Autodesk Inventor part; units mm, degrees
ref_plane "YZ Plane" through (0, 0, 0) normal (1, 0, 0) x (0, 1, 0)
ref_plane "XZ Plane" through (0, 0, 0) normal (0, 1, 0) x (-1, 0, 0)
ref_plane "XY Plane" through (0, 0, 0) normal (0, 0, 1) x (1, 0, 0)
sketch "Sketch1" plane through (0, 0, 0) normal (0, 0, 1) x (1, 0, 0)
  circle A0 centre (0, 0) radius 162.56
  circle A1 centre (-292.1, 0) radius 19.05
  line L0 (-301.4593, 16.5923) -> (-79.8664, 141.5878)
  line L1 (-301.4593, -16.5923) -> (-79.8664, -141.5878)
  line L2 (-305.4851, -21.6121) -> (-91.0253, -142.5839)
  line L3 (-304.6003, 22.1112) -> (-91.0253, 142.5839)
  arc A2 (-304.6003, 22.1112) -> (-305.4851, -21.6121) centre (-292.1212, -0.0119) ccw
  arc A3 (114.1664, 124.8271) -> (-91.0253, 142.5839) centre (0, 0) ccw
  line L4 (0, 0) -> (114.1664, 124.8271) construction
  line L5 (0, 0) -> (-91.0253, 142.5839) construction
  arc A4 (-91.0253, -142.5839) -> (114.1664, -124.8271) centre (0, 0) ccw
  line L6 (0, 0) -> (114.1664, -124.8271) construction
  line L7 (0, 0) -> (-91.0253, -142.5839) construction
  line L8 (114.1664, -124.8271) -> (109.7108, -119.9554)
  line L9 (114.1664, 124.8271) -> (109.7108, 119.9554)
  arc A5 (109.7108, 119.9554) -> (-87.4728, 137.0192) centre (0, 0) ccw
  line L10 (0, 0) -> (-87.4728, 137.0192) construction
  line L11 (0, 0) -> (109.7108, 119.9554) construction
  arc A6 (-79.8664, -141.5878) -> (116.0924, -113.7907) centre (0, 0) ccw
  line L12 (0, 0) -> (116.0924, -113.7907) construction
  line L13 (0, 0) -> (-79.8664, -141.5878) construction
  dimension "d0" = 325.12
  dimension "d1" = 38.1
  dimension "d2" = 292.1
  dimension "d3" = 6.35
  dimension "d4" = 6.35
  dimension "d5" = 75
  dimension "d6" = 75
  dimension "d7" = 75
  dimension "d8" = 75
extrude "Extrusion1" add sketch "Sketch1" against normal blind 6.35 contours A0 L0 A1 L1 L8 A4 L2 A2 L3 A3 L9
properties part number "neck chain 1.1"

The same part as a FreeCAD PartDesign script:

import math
import FreeCAD as App
import Part
import Sketcher
Q = App.Units.Quantity

doc = App.newDocument("Part")
body = doc.addObject("PartDesign::Body", "Body")

# Sketch on XY plane
sketch1 = doc.addObject("Sketcher::SketchObject", "Sketch")
body.addObject(sketch1)
sketch1.AttachmentSupport = (doc.XY_Plane, [""])
sketch1.MapMode = "FlatFace"
sketch1.addGeometry(Part.ArcOfCircle(Part.Circle(App.Vector(0, 0, 0), App.Vector(0, 0, 1), 163), math.radians(48), math.radians(119)), False)
sketch1.addGeometry(Part.LineSegment(App.Vector(110, 120, 0), App.Vector(114, 125, 0)), False)
sketch1.addGeometry(Part.ArcOfCircle(Part.Circle(App.Vector(0, 0, 0), App.Vector(0, 0, 1), 169), math.radians(48), math.radians(123)), False)
sketch1.addGeometry(Part.LineSegment(App.Vector(-91, 143, 0), App.Vector(-305, 22, 0)), False)
sketch1.addGeometry(Part.ArcOfCircle(Part.Circle(App.Vector(-292, 0, 0), App.Vector(0, 0, 1), 25), math.radians(119), math.radians(238)), False)
sketch1.addGeometry(Part.LineSegment(App.Vector(-305, -22, 0), App.Vector(-91, -143, 0)), False)
sketch1.addGeometry(Part.ArcOfCircle(Part.Circle(App.Vector(0, 0, 0), App.Vector(0, 0, 1), 169), math.radians(-123), math.radians(-48)), False)
sketch1.addGeometry(Part.LineSegment(App.Vector(114, -125, 0), App.Vector(110, -120, 0)), False)
sketch1.addGeometry(Part.ArcOfCircle(Part.Circle(App.Vector(0, 0, 0), App.Vector(0, 0, 1), 163), math.radians(-119), math.radians(-48)), False)
sketch1.addGeometry(Part.LineSegment(App.Vector(-80, -142, 0), App.Vector(-301, -17, 0)), False)
sketch1.addGeometry(Part.ArcOfCircle(Part.Circle(App.Vector(-292, 0, 0), App.Vector(0, 0, 1), 19), math.radians(119), math.radians(241)), False)
sketch1.addGeometry(Part.LineSegment(App.Vector(-301, 17, 0), App.Vector(-80, 142, 0)), False)
sketch1.addConstraint(Sketcher.Constraint("Coincident", 0, 1, 1, 1))
sketch1.addConstraint(Sketcher.Constraint("Coincident", 1, 2, 2, 1))
sketch1.addConstraint(Sketcher.Constraint("Coincident", 2, 2, 3, 1))
sketch1.addConstraint(Sketcher.Constraint("Tangent", 3, 2, 4, 1))
sketch1.addConstraint(Sketcher.Constraint("Coincident", 4, 2, 5, 1))
sketch1.addConstraint(Sketcher.Constraint("Coincident", 5, 2, 6, 1))
sketch1.addConstraint(Sketcher.Constraint("Coincident", 6, 2, 7, 1))
sketch1.addConstraint(Sketcher.Constraint("Coincident", 7, 2, 8, 2))
sketch1.addConstraint(Sketcher.Constraint("Tangent", 8, 1, 9, 1))
sketch1.addConstraint(Sketcher.Constraint("Tangent", 9, 2, 10, 2))
sketch1.addConstraint(Sketcher.Constraint("Tangent", 10, 1, 11, 1))
sketch1.addConstraint(Sketcher.Constraint("Tangent", 11, 2, 0, 2))
sketch1.addConstraint(Sketcher.Constraint("Coincident", 0, 3, -1, 1))
sketch1.addConstraint(Sketcher.Constraint("Coincident", 2, 3, -1, 1))
sketch1.addConstraint(Sketcher.Constraint("Coincident", 6, 3, -1, 1))
sketch1.addConstraint(Sketcher.Constraint("Coincident", 8, 3, -1, 1))
sketch1.addConstraint(Sketcher.Constraint("Equal", 2, 6))
sketch1.addConstraint(Sketcher.Constraint("Equal", 0, 8))
sketch1.addConstraint(Sketcher.Constraint("PointOnObject", 10, 3, -1))
sketch1.addConstraint(Sketcher.Constraint("Parallel", 5, 9))
sketch1.addConstraint(Sketcher.Constraint("Parallel", 3, 11))
sketch1.addConstraint(Sketcher.Constraint("Vertical", 2, 2, 5, 2))
sketch1.addConstraint(Sketcher.Constraint("Vertical", 1, 2, 6, 2))
sketch1.addConstraint(Sketcher.Constraint("Vertical", 0, 1, 7, 2))
sketch1.addConstraint(Sketcher.Constraint("Radius", 0, Q("6.4 in")))
sketch1.addConstraint(Sketcher.Constraint("Radius", 10, Q("0.75 in")))
sketch1.addConstraint(Sketcher.Constraint("Radius", 4, Q("1 in")))
sketch1.addConstraint(Sketcher.Constraint("DistanceX", 10, 3, -1, 1, Q("11.5 in")))
sketch1.addConstraint(Sketcher.Constraint("Radius", 2, 169.162))
sketch1.addConstraint(Sketcher.Constraint("DistanceX", 2, 2, 0, 1, Q("7.903 in")))
sketch1.addConstraint(Sketcher.Constraint("DistanceY", 0, 1, 1, 2, Q("0.1918 in")))
sketch1.addConstraint(Sketcher.Constraint("DistanceY", 4, 2, 4, 3, Q("0.8504 in")))
sketch1.addConstraint(Sketcher.Constraint("DistanceX", 4, 2, 2, 2, Q("8.4433 in")))
pad1 = doc.addObject("PartDesign::Pad", "Pad")
body.addObject(pad1)
pad1.Profile = sketch1
pad1.Length = Q("0.25 in")
pad1.Reversed = True

doc.recompute()
